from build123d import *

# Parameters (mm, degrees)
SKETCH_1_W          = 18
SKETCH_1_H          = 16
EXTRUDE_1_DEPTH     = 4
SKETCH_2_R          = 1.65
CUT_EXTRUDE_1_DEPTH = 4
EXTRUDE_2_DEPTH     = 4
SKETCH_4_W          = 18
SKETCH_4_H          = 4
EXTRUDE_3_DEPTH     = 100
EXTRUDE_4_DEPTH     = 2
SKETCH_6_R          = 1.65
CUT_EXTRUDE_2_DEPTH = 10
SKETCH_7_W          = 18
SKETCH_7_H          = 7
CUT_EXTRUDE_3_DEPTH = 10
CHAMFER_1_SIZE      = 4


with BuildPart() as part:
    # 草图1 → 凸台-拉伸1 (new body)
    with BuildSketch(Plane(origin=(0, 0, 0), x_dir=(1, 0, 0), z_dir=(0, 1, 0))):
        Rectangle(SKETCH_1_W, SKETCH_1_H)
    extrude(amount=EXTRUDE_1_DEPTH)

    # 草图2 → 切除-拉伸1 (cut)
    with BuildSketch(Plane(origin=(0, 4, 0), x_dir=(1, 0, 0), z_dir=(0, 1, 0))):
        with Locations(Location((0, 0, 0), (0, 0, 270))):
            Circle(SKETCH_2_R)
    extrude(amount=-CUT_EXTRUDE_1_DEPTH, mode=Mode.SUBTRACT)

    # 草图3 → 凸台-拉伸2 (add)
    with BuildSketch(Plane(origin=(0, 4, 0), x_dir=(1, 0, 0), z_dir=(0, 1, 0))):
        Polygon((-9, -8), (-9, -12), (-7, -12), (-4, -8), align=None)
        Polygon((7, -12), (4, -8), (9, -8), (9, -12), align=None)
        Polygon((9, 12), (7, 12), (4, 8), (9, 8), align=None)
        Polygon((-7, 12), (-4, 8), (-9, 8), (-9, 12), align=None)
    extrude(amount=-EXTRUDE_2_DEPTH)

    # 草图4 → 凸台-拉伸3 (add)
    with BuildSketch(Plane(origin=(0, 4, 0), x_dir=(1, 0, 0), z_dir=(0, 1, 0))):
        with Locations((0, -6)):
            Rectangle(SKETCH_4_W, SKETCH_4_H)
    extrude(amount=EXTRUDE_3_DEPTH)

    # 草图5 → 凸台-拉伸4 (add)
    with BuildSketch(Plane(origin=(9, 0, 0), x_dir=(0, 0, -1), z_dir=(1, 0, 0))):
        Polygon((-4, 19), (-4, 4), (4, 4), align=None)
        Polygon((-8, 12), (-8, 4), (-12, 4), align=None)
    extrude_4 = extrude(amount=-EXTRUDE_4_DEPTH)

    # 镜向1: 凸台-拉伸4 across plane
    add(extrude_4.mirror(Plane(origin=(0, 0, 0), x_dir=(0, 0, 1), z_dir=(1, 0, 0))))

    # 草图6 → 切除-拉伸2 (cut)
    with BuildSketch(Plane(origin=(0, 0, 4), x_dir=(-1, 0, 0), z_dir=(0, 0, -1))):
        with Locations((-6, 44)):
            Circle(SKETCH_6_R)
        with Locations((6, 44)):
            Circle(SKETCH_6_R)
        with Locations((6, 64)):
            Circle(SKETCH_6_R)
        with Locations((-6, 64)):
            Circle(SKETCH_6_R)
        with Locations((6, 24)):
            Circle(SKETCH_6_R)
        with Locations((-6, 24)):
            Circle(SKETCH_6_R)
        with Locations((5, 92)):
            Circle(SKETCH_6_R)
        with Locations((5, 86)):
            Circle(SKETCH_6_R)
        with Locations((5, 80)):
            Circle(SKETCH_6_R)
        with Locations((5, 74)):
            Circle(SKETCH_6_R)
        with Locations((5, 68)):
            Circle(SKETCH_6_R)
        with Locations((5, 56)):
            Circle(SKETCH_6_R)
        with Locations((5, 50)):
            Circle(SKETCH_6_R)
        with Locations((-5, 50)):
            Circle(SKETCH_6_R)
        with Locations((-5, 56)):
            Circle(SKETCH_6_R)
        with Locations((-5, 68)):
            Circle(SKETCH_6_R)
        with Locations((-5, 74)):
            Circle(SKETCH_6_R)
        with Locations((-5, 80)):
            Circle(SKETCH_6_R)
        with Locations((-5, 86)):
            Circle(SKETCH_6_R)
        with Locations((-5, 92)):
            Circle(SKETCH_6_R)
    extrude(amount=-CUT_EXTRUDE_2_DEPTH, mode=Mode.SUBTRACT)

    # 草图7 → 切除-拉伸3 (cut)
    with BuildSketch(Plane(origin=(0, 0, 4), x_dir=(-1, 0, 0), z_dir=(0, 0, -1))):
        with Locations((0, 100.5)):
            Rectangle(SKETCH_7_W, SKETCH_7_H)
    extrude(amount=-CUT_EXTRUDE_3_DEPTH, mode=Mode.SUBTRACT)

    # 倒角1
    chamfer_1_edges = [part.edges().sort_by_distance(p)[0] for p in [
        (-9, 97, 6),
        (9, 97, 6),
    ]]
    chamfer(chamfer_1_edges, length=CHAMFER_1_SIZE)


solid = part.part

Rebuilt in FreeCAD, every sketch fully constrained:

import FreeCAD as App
import Part
import Sketcher

V = App.Vector


def edges_at(feature, points):
    """Names of the edges that pass closest to the given points."""
    edges = feature.Shape.Edges
    near = lambda p: min(range(len(edges)), key=lambda i: edges[i].distToShape(Part.Vertex(*p))[0])
    return sorted({f"Edge{near(p) + 1}" for p in points})

doc = App.newDocument("Part")
body = doc.addObject("PartDesign::Body", "Body")

# Sketch on XZ plane
sketch1 = doc.addObject("Sketcher::SketchObject", "Sketch")
body.addObject(sketch1)
sketch1.AttachmentSupport = (doc.XZ_Plane, [""])
sketch1.MapMode = "FlatFace"
sketch1.addGeometry([
    Part.LineSegment(V(-9, -8, 0), V(-9, 8, 0)),
    Part.LineSegment(V(-9, 8, 0), V(9, 8, 0)),
    Part.LineSegment(V(9, 8, 0), V(9, -8, 0)),
    Part.LineSegment(V(9, -8, 0), V(-9, -8, 0)),
], False)
sketch1.addConstraint([
    Sketcher.Constraint("Coincident", 0, 2, 1, 1),
    Sketcher.Constraint("Coincident", 1, 2, 2, 1),
    Sketcher.Constraint("Coincident", 2, 2, 3, 1),
    Sketcher.Constraint("Coincident", 3, 2, 0, 1),
    Sketcher.Constraint("Vertical", 0),
    Sketcher.Constraint("Horizontal", 1),
    Sketcher.Constraint("Vertical", 2),
    Sketcher.Constraint("Horizontal", 3),
    Sketcher.Constraint("Symmetric", 0, 2, 2, 2, -1, 1),
    Sketcher.Constraint("DistanceX", 1, 1, 1, 2, 18.0),
    Sketcher.Constraint("DistanceY", 0, 1, 0, 2, 16.0),
])
pad1 = doc.addObject("PartDesign::Pad", "Pad")
body.addObject(pad1)
pad1.Profile = sketch1
pad1.Length = 4
pad1.Reversed = True

# Sketch on XZ plane
sketch2 = doc.addObject("Sketcher::SketchObject", "Sketch001")
body.addObject(sketch2)
sketch2.AttachmentSupport = (doc.XZ_Plane, [""])
sketch2.MapMode = "FlatFace"
sketch2.AttachmentOffset = App.Placement(V(0, 0, -4), App.Rotation())
sketch2.addGeometry(Part.Circle(V(0, 0, 0), V(0, 0, 1), 1.6), False)
sketch2.addConstraint([
    Sketcher.Constraint("Coincident", 0, 3, -1, 1),
    Sketcher.Constraint("Diameter", 0, 3.3),
])
pocket1 = doc.addObject("PartDesign::Pocket", "Pocket")
body.addObject(pocket1)
pocket1.Profile = sketch2
pocket1.Length = 4
pocket1.Reversed = True

# Sketch on XZ plane
sketch3 = doc.addObject("Sketcher::SketchObject", "Sketch002")
body.addObject(sketch3)
sketch3.AttachmentSupport = (doc.XZ_Plane, [""])
sketch3.MapMode = "FlatFace"
sketch3.AttachmentOffset = App.Placement(V(0, 0, -4), App.Rotation())
sketch3.addGeometry([
    Part.LineSegment(V(-9, 8, 0), V(-9, 12, 0)),  # 0
    Part.LineSegment(V(-9, 12, 0), V(-7, 12, 0)),  # 1
    Part.LineSegment(V(-7, 12, 0), V(-4, 8, 0)),  # 2
    Part.LineSegment(V(-4, 8, 0), V(-9, 8, 0)),  # 3
    Part.LineSegment(V(4, 8, 0), V(7, 12, 0)),  # 4
    Part.LineSegment(V(7, 12, 0), V(9, 12, 0)),  # 5
    Part.LineSegment(V(9, 12, 0), V(9, 8, 0)),  # 6
    Part.LineSegment(V(9, 8, 0), V(4, 8, 0)),  # 7
    Part.LineSegment(V(9, -12, 0), V(7, -12, 0)),  # 8
    Part.LineSegment(V(7, -12, 0), V(4, -8, 0)),  # 9
    Part.LineSegment(V(4, -8, 0), V(9, -8, 0)),  # 10
    Part.LineSegment(V(9, -8, 0), V(9, -12, 0)),  # 11
    Part.LineSegment(V(-4, -8, 0), V(-7, -12, 0)),  # 12
    Part.LineSegment(V(-7, -12, 0), V(-9, -12, 0)),  # 13
    Part.LineSegment(V(-9, -12, 0), V(-9, -8, 0)),  # 14
    Part.LineSegment(V(-9, -8, 0), V(-4, -8, 0)),  # 15
], False)
sketch3.addConstraint([
    Sketcher.Constraint("Coincident", 0, 2, 1, 1),
    Sketcher.Constraint("Coincident", 1, 2, 2, 1),
    Sketcher.Constraint("Coincident", 2, 2, 3, 1),
    Sketcher.Constraint("Coincident", 3, 2, 0, 1),
    Sketcher.Constraint("Coincident", 4, 2, 5, 1),
    Sketcher.Constraint("Coincident", 5, 2, 6, 1),
    Sketcher.Constraint("Coincident", 6, 2, 7, 1),
    Sketcher.Constraint("Coincident", 7, 2, 4, 1),
    Sketcher.Constraint("Coincident", 8, 2, 9, 1),
    Sketcher.Constraint("Coincident", 9, 2, 10, 1),
    Sketcher.Constraint("Coincident", 10, 2, 11, 1),
    Sketcher.Constraint("Coincident", 11, 2, 8, 1),
    Sketcher.Constraint("Coincident", 12, 2, 13, 1),
    Sketcher.Constraint("Coincident", 13, 2, 14, 1),
    Sketcher.Constraint("Coincident", 14, 2, 15, 1),
    Sketcher.Constraint("Coincident", 15, 2, 12, 1),
    Sketcher.Constraint("Vertical", 0),
    Sketcher.Constraint("Horizontal", 1),
    Sketcher.Constraint("Horizontal", 3),
    Sketcher.Constraint("Horizontal", 5),
    Sketcher.Constraint("Vertical", 6),
    Sketcher.Constraint("Horizontal", 7),
    Sketcher.Constraint("Horizontal", 8),
    Sketcher.Constraint("Horizontal", 10),
    Sketcher.Constraint("Vertical", 11),
    Sketcher.Constraint("Horizontal", 13),
    Sketcher.Constraint("Vertical", 14),
    Sketcher.Constraint("Horizontal", 15),
    Sketcher.Constraint("Symmetric", 1, 2, 8, 2, -1, 1),
    Sketcher.Constraint("Symmetric", 2, 2, 9, 2, -1, 1),
    Sketcher.Constraint("Symmetric", 4, 2, 12, 2, -1, 1),
    Sketcher.Constraint("Symmetric", 6, 2, 14, 2, -1, 1),
    Sketcher.Constraint("Symmetric", 1, 2, 4, 2, -2),
    Sketcher.Constraint("Symmetric", 3, 2, 6, 2, -2),
    Sketcher.Constraint("Parallel", 4, 12),
    Sketcher.Constraint("Vertical", 7, 2, 9, 2),
    Sketcher.Constraint("Vertical", 6, 2, 10, 2),
    Sketcher.Constraint("DistanceX", 1, 1, 1, 2, 2.0),
    Sketcher.Constraint("DistanceX", 3, 2, 3, 1, 5.0),
    Sketcher.Constraint("DistanceY", 0, 1, 0, 2, 4.0),
    Sketcher.Constraint("DistanceX", 0, 2, -1, 1, 9.0),
    Sketcher.Constraint("DistanceY", -1, 1, 0, 2, 12.0),
])
pad2 = doc.addObject("PartDesign::Pad", "Pad001")
body.addObject(pad2)
pad2.Profile = sketch3
pad2.Length = 4

# Sketch on XZ plane
sketch4 = doc.addObject("Sketcher::SketchObject", "Sketch003")
body.addObject(sketch4)
sketch4.AttachmentSupport = (doc.XZ_Plane, [""])
sketch4.MapMode = "FlatFace"
sketch4.AttachmentOffset = App.Placement(V(0, 0, -4), App.Rotation())
sketch4.addGeometry([
    Part.LineSegment(V(-9, 4, 0), V(-9, 8, 0)),
    Part.LineSegment(V(-9, 8, 0), V(9, 8, 0)),
    Part.LineSegment(V(9, 8, 0), V(9, 4, 0)),
    Part.LineSegment(V(9, 4, 0), V(-9, 4, 0)),
], False)
sketch4.addConstraint([
    Sketcher.Constraint("Coincident", 0, 2, 1, 1),
    Sketcher.Constraint("Coincident", 1, 2, 2, 1),
    Sketcher.Constraint("Coincident", 2, 2, 3, 1),
    Sketcher.Constraint("Coincident", 3, 2, 0, 1),
    Sketcher.Constraint("Vertical", 0),
    Sketcher.Constraint("Horizontal", 1),
    Sketcher.Constraint("Vertical", 2),
    Sketcher.Constraint("Horizontal", 3),
    Sketcher.Constraint("DistanceX", 1, 1, 1, 2, 18.0),
    Sketcher.Constraint("DistanceY", 0, 1, 0, 2, 4.0),
    Sketcher.Constraint("DistanceX", 0, 2, -1, 1, 9.0),
    Sketcher.Constraint("DistanceY", -1, 1, 0, 2, 8.0),
])
pad3 = doc.addObject("PartDesign::Pad", "Pad002")
body.addObject(pad3)
pad3.Profile = sketch4
pad3.Length = 100
pad3.Reversed = True

# Sketch on YZ plane
sketch5 = doc.addObject("Sketcher::SketchObject", "Sketch004")
body.addObject(sketch5)
sketch5.AttachmentSupport = (doc.YZ_Plane, [""])
sketch5.MapMode = "FlatFace"
sketch5.AttachmentOffset = App.Placement(V(0, 0, 9), App.Rotation())
sketch5.addGeometry([
    Part.LineSegment(V(19, 4, 0), V(4, 4, 0)),  # 0
    Part.LineSegment(V(4, 4, 0), V(4, -4, 0)),  # 1
    Part.LineSegment(V(4, -4, 0), V(19, 4, 0)),  # 2
    Part.LineSegment(V(4, 8, 0), V(12, 8, 0)),  # 3
    Part.LineSegment(V(12, 8, 0), V(4, 12, 0)),  # 4
    Part.LineSegment(V(4, 12, 0), V(4, 8, 0)),  # 5
], False)
sketch5.addConstraint([
    Sketcher.Constraint("Coincident", 0, 2, 1, 1),
    Sketcher.Constraint("Coincident", 1, 2, 2, 1),
    Sketcher.Constraint("Coincident", 2, 2, 0, 1),
    Sketcher.Constraint("Coincident", 3, 2, 4, 1),
    Sketcher.Constraint("Coincident", 4, 2, 5, 1),
    Sketcher.Constraint("Coincident", 5, 2, 3, 1),
    Sketcher.Constraint("Horizontal", 0),
    Sketcher.Constraint("Vertical", 1),
    Sketcher.Constraint("Horizontal", 3),
    Sketcher.Constraint("Vertical", 5),
    Sketcher.Constraint("Vertical", 1, 2, 4, 2),
    Sketcher.Constraint("Equal", 3, 1),
    Sketcher.Constraint("DistanceX", 0, 2, 0, 1, 15.0),
    Sketcher.Constraint("DistanceX", 3, 1, 3, 2, 8.0),
    Sketcher.Constraint("DistanceY", 5, 2, 5, 1, 4.0),
    Sketcher.Constraint("DistanceX", -1, 1, 0, 2, 4.0),
    Sketcher.Constraint("DistanceY", -1, 1, 0, 2, 4.0),
    Sketcher.Constraint("DistanceY", -1, 1, 3, 2, 8.0),
])
pad4 = doc.addObject("PartDesign::Pad", "Pad003")
body.addObject(pad4)
pad4.Profile = sketch5
pad4.Length = 2
pad4.Reversed = True
doc.recompute()

mirrored = doc.addObject("PartDesign::Mirrored", "Mirrored")
body.addObject(mirrored)
mirrored.Originals = [pad4]
mirrored.MirrorPlane = (doc.YZ_Plane, [""])
body.Tip = mirrored

# Sketch on XY plane
sketch6 = doc.addObject("Sketcher::SketchObject", "Sketch005")
body.addObject(sketch6)
sketch6.AttachmentSupport = (doc.XY_Plane, [""])
sketch6.MapMode = "FlatFace"
sketch6.AttachmentOffset = App.Placement(V(0, 0, 4), App.Rotation())
sketch6.addGeometry([
    Part.Circle(V(6, 44, 0), V(0, 0, 1), 1.6),  # 0
    Part.Circle(V(-6, 44, 0), V(0, 0, 1), 1.6),  # 1
    Part.Circle(V(-6, 64, 0), V(0, 0, 1), 1.6),  # 2
    Part.Circle(V(6, 64, 0), V(0, 0, 1), 1.6),  # 3
    Part.Circle(V(-6, 24, 0), V(0, 0, 1), 1.6),  # 4
    Part.Circle(V(6, 24, 0), V(0, 0, 1), 1.6),  # 5
    Part.Circle(V(-5, 92, 0), V(0, 0, 1), 1.6),  # 6
    Part.Circle(V(-5, 86, 0), V(0, 0, 1), 1.6),  # 7
    Part.Circle(V(-5, 80, 0), V(0, 0, 1), 1.6),  # 8
    Part.Circle(V(-5, 74, 0), V(0, 0, 1), 1.6),  # 9
    Part.Circle(V(-5, 68, 0), V(0, 0, 1), 1.6),  # 10
    Part.Circle(V(-5, 56, 0), V(0, 0, 1), 1.6),  # 11
    Part.Circle(V(-5, 50, 0), V(0, 0, 1), 1.6),  # 12
    Part.Circle(V(5, 50, 0), V(0, 0, 1), 1.6),  # 13
    Part.Circle(V(5, 56, 0), V(0, 0, 1), 1.6),  # 14
    Part.Circle(V(5, 68, 0), V(0, 0, 1), 1.6),  # 15
    Part.Circle(V(5, 74, 0), V(0, 0, 1), 1.6),  # 16
    Part.Circle(V(5, 80, 0), V(0, 0, 1), 1.6),  # 17
    Part.Circle(V(5, 86, 0), V(0, 0, 1), 1.6),  # 18
    Part.Circle(V(5, 92, 0), V(0, 0, 1), 1.6),  # 19
], False)
sketch6.addConstraint([
    Sketcher.Constraint("Equal", 0, 1),
    Sketcher.Constraint("Equal", 1, 2),
    Sketcher.Constraint("Equal", 2, 3),
    Sketcher.Constraint("Equal", 3, 4),
    Sketcher.Constraint("Equal", 4, 5),
    Sketcher.Constraint("Equal", 5, 6),
    Sketcher.Constraint("Equal", 6, 7),
    Sketcher.Constraint("Equal", 7, 8),
    Sketcher.Constraint("Equal", 8, 9),
    Sketcher.Constraint("Equal", 9, 10),
    Sketcher.Constraint("Equal", 10, 11),
    Sketcher.Constraint("Equal", 11, 12),
    Sketcher.Constraint("Equal", 12, 13),
    Sketcher.Constraint("Equal", 13, 14),
    Sketcher.Constraint("Equal", 14, 15),
    Sketcher.Constraint("Equal", 15, 16),
    Sketcher.Constraint("Equal", 16, 17),
    Sketcher.Constraint("Equal", 17, 18),
    Sketcher.Constraint("Equal", 18, 19),
    Sketcher.Constraint("Symmetric", 0, 3, 1, 3, -2),
    Sketcher.Constraint("Symmetric", 2, 3, 3, 3, -2),
    Sketcher.Constraint("Symmetric", 4, 3, 5, 3, -2),
    Sketcher.Constraint("Symmetric", 12, 3, 13, 3, -2),
    Sketcher.Constraint("Symmetric", 11, 3, 14, 3, -2),
    Sketcher.Constraint("Symmetric", 10, 3, 15, 3, -2),
    Sketcher.Constraint("Symmetric", 9, 3, 16, 3, -2),
    Sketcher.Constraint("Symmetric", 8, 3, 17, 3, -2),
    Sketcher.Constraint("Symmetric", 7, 3, 18, 3, -2),
    Sketcher.Constraint("Symmetric", 6, 3, 19, 3, -2),
    Sketcher.Constraint("Vertical", 1, 3, 2, 3),
    Sketcher.Constraint("Vertical", 2, 3, 4, 3),
    Sketcher.Constraint("Vertical", 6, 3, 7, 3),
    Sketcher.Constraint("Vertical", 7, 3, 8, 3),
    Sketcher.Constraint("Vertical", 8, 3, 9, 3),
    Sketcher.Constraint("Vertical", 9, 3, 10, 3),
    Sketcher.Constraint("Vertical", 10, 3, 11, 3),
    Sketcher.Constraint("Vertical", 11, 3, 12, 3),
    Sketcher.Constraint("Diameter", 0, 3.3),
    Sketcher.Constraint("DistanceX", -1, 1, 0, 3, 6.0),
    Sketcher.Constraint("DistanceY", -1, 1, 0, 3, 44.0),
    Sketcher.Constraint("DistanceY", -1, 1, 2, 3, 64.0),
    Sketcher.Constraint("DistanceY", -1, 1, 4, 3, 24.0),
    Sketcher.Constraint("DistanceX", 6, 3, -1, 1, 5.0),
    Sketcher.Constraint("DistanceY", -1, 1, 6, 3, 92.0),
    Sketcher.Constraint("DistanceY", -1, 1, 7, 3, 86.0),
    Sketcher.Constraint("DistanceY", -1, 1, 8, 3, 80.0),
    Sketcher.Constraint("DistanceY", -1, 1, 9, 3, 74.0),
    Sketcher.Constraint("DistanceY", -1, 1, 10, 3, 68.0),
    Sketcher.Constraint("DistanceY", -1, 1, 11, 3, 56.0),
    Sketcher.Constraint("DistanceY", -1, 1, 12, 3, 50.0),
])
pocket2 = doc.addObject("PartDesign::Pocket", "Pocket001")
body.addObject(pocket2)
pocket2.Profile = sketch6
pocket2.Length = 10
pocket2.Reversed = True

# Sketch on XY plane
sketch7 = doc.addObject("Sketcher::SketchObject", "Sketch006")
body.addObject(sketch7)
sketch7.AttachmentSupport = (doc.XY_Plane, [""])
sketch7.MapMode = "FlatFace"
sketch7.AttachmentOffset = App.Placement(V(0, 0, 4), App.Rotation())
sketch7.addGeometry([
    Part.LineSegment(V(9, 104, 0), V(9, 97, 0)),
    Part.LineSegment(V(9, 97, 0), V(-9, 97, 0)),
    Part.LineSegment(V(-9, 97, 0), V(-9, 104, 0)),
    Part.LineSegment(V(-9, 104, 0), V(9, 104, 0)),
], False)
sketch7.addConstraint([
    Sketcher.Constraint("Coincident", 0, 2, 1, 1),
    Sketcher.Constraint("Coincident", 1, 2, 2, 1),
    Sketcher.Constraint("Coincident", 2, 2, 3, 1),
    Sketcher.Constraint("Coincident", 3, 2, 0, 1),
    Sketcher.Constraint("Vertical", 0),
    Sketcher.Constraint("Horizontal", 1),
    Sketcher.Constraint("Vertical", 2),
    Sketcher.Constraint("Horizontal", 3),
    Sketcher.Constraint("DistanceX", 1, 2, 1, 1, 18.0),
    Sketcher.Constraint("DistanceY", 0, 2, 0, 1, 7.0),
    Sketcher.Constraint("DistanceX", -1, 1, 0, 2, 9.0),
    Sketcher.Constraint("DistanceY", -1, 1, 0, 2, 97.0),
])
pocket3 = doc.addObject("PartDesign::Pocket", "Pocket002")
body.addObject(pocket3)
pocket3.Profile = sketch7
pocket3.Length = 10
pocket3.Reversed = True
doc.recompute()

chamfer = doc.addObject("PartDesign::Chamfer", "Chamfer")
body.addObject(chamfer)
chamfer.Base = (pocket3, edges_at(pocket3, [(-9, 97, 6), (9, 97, 6)]))
chamfer.Size = 4

doc.recompute()
